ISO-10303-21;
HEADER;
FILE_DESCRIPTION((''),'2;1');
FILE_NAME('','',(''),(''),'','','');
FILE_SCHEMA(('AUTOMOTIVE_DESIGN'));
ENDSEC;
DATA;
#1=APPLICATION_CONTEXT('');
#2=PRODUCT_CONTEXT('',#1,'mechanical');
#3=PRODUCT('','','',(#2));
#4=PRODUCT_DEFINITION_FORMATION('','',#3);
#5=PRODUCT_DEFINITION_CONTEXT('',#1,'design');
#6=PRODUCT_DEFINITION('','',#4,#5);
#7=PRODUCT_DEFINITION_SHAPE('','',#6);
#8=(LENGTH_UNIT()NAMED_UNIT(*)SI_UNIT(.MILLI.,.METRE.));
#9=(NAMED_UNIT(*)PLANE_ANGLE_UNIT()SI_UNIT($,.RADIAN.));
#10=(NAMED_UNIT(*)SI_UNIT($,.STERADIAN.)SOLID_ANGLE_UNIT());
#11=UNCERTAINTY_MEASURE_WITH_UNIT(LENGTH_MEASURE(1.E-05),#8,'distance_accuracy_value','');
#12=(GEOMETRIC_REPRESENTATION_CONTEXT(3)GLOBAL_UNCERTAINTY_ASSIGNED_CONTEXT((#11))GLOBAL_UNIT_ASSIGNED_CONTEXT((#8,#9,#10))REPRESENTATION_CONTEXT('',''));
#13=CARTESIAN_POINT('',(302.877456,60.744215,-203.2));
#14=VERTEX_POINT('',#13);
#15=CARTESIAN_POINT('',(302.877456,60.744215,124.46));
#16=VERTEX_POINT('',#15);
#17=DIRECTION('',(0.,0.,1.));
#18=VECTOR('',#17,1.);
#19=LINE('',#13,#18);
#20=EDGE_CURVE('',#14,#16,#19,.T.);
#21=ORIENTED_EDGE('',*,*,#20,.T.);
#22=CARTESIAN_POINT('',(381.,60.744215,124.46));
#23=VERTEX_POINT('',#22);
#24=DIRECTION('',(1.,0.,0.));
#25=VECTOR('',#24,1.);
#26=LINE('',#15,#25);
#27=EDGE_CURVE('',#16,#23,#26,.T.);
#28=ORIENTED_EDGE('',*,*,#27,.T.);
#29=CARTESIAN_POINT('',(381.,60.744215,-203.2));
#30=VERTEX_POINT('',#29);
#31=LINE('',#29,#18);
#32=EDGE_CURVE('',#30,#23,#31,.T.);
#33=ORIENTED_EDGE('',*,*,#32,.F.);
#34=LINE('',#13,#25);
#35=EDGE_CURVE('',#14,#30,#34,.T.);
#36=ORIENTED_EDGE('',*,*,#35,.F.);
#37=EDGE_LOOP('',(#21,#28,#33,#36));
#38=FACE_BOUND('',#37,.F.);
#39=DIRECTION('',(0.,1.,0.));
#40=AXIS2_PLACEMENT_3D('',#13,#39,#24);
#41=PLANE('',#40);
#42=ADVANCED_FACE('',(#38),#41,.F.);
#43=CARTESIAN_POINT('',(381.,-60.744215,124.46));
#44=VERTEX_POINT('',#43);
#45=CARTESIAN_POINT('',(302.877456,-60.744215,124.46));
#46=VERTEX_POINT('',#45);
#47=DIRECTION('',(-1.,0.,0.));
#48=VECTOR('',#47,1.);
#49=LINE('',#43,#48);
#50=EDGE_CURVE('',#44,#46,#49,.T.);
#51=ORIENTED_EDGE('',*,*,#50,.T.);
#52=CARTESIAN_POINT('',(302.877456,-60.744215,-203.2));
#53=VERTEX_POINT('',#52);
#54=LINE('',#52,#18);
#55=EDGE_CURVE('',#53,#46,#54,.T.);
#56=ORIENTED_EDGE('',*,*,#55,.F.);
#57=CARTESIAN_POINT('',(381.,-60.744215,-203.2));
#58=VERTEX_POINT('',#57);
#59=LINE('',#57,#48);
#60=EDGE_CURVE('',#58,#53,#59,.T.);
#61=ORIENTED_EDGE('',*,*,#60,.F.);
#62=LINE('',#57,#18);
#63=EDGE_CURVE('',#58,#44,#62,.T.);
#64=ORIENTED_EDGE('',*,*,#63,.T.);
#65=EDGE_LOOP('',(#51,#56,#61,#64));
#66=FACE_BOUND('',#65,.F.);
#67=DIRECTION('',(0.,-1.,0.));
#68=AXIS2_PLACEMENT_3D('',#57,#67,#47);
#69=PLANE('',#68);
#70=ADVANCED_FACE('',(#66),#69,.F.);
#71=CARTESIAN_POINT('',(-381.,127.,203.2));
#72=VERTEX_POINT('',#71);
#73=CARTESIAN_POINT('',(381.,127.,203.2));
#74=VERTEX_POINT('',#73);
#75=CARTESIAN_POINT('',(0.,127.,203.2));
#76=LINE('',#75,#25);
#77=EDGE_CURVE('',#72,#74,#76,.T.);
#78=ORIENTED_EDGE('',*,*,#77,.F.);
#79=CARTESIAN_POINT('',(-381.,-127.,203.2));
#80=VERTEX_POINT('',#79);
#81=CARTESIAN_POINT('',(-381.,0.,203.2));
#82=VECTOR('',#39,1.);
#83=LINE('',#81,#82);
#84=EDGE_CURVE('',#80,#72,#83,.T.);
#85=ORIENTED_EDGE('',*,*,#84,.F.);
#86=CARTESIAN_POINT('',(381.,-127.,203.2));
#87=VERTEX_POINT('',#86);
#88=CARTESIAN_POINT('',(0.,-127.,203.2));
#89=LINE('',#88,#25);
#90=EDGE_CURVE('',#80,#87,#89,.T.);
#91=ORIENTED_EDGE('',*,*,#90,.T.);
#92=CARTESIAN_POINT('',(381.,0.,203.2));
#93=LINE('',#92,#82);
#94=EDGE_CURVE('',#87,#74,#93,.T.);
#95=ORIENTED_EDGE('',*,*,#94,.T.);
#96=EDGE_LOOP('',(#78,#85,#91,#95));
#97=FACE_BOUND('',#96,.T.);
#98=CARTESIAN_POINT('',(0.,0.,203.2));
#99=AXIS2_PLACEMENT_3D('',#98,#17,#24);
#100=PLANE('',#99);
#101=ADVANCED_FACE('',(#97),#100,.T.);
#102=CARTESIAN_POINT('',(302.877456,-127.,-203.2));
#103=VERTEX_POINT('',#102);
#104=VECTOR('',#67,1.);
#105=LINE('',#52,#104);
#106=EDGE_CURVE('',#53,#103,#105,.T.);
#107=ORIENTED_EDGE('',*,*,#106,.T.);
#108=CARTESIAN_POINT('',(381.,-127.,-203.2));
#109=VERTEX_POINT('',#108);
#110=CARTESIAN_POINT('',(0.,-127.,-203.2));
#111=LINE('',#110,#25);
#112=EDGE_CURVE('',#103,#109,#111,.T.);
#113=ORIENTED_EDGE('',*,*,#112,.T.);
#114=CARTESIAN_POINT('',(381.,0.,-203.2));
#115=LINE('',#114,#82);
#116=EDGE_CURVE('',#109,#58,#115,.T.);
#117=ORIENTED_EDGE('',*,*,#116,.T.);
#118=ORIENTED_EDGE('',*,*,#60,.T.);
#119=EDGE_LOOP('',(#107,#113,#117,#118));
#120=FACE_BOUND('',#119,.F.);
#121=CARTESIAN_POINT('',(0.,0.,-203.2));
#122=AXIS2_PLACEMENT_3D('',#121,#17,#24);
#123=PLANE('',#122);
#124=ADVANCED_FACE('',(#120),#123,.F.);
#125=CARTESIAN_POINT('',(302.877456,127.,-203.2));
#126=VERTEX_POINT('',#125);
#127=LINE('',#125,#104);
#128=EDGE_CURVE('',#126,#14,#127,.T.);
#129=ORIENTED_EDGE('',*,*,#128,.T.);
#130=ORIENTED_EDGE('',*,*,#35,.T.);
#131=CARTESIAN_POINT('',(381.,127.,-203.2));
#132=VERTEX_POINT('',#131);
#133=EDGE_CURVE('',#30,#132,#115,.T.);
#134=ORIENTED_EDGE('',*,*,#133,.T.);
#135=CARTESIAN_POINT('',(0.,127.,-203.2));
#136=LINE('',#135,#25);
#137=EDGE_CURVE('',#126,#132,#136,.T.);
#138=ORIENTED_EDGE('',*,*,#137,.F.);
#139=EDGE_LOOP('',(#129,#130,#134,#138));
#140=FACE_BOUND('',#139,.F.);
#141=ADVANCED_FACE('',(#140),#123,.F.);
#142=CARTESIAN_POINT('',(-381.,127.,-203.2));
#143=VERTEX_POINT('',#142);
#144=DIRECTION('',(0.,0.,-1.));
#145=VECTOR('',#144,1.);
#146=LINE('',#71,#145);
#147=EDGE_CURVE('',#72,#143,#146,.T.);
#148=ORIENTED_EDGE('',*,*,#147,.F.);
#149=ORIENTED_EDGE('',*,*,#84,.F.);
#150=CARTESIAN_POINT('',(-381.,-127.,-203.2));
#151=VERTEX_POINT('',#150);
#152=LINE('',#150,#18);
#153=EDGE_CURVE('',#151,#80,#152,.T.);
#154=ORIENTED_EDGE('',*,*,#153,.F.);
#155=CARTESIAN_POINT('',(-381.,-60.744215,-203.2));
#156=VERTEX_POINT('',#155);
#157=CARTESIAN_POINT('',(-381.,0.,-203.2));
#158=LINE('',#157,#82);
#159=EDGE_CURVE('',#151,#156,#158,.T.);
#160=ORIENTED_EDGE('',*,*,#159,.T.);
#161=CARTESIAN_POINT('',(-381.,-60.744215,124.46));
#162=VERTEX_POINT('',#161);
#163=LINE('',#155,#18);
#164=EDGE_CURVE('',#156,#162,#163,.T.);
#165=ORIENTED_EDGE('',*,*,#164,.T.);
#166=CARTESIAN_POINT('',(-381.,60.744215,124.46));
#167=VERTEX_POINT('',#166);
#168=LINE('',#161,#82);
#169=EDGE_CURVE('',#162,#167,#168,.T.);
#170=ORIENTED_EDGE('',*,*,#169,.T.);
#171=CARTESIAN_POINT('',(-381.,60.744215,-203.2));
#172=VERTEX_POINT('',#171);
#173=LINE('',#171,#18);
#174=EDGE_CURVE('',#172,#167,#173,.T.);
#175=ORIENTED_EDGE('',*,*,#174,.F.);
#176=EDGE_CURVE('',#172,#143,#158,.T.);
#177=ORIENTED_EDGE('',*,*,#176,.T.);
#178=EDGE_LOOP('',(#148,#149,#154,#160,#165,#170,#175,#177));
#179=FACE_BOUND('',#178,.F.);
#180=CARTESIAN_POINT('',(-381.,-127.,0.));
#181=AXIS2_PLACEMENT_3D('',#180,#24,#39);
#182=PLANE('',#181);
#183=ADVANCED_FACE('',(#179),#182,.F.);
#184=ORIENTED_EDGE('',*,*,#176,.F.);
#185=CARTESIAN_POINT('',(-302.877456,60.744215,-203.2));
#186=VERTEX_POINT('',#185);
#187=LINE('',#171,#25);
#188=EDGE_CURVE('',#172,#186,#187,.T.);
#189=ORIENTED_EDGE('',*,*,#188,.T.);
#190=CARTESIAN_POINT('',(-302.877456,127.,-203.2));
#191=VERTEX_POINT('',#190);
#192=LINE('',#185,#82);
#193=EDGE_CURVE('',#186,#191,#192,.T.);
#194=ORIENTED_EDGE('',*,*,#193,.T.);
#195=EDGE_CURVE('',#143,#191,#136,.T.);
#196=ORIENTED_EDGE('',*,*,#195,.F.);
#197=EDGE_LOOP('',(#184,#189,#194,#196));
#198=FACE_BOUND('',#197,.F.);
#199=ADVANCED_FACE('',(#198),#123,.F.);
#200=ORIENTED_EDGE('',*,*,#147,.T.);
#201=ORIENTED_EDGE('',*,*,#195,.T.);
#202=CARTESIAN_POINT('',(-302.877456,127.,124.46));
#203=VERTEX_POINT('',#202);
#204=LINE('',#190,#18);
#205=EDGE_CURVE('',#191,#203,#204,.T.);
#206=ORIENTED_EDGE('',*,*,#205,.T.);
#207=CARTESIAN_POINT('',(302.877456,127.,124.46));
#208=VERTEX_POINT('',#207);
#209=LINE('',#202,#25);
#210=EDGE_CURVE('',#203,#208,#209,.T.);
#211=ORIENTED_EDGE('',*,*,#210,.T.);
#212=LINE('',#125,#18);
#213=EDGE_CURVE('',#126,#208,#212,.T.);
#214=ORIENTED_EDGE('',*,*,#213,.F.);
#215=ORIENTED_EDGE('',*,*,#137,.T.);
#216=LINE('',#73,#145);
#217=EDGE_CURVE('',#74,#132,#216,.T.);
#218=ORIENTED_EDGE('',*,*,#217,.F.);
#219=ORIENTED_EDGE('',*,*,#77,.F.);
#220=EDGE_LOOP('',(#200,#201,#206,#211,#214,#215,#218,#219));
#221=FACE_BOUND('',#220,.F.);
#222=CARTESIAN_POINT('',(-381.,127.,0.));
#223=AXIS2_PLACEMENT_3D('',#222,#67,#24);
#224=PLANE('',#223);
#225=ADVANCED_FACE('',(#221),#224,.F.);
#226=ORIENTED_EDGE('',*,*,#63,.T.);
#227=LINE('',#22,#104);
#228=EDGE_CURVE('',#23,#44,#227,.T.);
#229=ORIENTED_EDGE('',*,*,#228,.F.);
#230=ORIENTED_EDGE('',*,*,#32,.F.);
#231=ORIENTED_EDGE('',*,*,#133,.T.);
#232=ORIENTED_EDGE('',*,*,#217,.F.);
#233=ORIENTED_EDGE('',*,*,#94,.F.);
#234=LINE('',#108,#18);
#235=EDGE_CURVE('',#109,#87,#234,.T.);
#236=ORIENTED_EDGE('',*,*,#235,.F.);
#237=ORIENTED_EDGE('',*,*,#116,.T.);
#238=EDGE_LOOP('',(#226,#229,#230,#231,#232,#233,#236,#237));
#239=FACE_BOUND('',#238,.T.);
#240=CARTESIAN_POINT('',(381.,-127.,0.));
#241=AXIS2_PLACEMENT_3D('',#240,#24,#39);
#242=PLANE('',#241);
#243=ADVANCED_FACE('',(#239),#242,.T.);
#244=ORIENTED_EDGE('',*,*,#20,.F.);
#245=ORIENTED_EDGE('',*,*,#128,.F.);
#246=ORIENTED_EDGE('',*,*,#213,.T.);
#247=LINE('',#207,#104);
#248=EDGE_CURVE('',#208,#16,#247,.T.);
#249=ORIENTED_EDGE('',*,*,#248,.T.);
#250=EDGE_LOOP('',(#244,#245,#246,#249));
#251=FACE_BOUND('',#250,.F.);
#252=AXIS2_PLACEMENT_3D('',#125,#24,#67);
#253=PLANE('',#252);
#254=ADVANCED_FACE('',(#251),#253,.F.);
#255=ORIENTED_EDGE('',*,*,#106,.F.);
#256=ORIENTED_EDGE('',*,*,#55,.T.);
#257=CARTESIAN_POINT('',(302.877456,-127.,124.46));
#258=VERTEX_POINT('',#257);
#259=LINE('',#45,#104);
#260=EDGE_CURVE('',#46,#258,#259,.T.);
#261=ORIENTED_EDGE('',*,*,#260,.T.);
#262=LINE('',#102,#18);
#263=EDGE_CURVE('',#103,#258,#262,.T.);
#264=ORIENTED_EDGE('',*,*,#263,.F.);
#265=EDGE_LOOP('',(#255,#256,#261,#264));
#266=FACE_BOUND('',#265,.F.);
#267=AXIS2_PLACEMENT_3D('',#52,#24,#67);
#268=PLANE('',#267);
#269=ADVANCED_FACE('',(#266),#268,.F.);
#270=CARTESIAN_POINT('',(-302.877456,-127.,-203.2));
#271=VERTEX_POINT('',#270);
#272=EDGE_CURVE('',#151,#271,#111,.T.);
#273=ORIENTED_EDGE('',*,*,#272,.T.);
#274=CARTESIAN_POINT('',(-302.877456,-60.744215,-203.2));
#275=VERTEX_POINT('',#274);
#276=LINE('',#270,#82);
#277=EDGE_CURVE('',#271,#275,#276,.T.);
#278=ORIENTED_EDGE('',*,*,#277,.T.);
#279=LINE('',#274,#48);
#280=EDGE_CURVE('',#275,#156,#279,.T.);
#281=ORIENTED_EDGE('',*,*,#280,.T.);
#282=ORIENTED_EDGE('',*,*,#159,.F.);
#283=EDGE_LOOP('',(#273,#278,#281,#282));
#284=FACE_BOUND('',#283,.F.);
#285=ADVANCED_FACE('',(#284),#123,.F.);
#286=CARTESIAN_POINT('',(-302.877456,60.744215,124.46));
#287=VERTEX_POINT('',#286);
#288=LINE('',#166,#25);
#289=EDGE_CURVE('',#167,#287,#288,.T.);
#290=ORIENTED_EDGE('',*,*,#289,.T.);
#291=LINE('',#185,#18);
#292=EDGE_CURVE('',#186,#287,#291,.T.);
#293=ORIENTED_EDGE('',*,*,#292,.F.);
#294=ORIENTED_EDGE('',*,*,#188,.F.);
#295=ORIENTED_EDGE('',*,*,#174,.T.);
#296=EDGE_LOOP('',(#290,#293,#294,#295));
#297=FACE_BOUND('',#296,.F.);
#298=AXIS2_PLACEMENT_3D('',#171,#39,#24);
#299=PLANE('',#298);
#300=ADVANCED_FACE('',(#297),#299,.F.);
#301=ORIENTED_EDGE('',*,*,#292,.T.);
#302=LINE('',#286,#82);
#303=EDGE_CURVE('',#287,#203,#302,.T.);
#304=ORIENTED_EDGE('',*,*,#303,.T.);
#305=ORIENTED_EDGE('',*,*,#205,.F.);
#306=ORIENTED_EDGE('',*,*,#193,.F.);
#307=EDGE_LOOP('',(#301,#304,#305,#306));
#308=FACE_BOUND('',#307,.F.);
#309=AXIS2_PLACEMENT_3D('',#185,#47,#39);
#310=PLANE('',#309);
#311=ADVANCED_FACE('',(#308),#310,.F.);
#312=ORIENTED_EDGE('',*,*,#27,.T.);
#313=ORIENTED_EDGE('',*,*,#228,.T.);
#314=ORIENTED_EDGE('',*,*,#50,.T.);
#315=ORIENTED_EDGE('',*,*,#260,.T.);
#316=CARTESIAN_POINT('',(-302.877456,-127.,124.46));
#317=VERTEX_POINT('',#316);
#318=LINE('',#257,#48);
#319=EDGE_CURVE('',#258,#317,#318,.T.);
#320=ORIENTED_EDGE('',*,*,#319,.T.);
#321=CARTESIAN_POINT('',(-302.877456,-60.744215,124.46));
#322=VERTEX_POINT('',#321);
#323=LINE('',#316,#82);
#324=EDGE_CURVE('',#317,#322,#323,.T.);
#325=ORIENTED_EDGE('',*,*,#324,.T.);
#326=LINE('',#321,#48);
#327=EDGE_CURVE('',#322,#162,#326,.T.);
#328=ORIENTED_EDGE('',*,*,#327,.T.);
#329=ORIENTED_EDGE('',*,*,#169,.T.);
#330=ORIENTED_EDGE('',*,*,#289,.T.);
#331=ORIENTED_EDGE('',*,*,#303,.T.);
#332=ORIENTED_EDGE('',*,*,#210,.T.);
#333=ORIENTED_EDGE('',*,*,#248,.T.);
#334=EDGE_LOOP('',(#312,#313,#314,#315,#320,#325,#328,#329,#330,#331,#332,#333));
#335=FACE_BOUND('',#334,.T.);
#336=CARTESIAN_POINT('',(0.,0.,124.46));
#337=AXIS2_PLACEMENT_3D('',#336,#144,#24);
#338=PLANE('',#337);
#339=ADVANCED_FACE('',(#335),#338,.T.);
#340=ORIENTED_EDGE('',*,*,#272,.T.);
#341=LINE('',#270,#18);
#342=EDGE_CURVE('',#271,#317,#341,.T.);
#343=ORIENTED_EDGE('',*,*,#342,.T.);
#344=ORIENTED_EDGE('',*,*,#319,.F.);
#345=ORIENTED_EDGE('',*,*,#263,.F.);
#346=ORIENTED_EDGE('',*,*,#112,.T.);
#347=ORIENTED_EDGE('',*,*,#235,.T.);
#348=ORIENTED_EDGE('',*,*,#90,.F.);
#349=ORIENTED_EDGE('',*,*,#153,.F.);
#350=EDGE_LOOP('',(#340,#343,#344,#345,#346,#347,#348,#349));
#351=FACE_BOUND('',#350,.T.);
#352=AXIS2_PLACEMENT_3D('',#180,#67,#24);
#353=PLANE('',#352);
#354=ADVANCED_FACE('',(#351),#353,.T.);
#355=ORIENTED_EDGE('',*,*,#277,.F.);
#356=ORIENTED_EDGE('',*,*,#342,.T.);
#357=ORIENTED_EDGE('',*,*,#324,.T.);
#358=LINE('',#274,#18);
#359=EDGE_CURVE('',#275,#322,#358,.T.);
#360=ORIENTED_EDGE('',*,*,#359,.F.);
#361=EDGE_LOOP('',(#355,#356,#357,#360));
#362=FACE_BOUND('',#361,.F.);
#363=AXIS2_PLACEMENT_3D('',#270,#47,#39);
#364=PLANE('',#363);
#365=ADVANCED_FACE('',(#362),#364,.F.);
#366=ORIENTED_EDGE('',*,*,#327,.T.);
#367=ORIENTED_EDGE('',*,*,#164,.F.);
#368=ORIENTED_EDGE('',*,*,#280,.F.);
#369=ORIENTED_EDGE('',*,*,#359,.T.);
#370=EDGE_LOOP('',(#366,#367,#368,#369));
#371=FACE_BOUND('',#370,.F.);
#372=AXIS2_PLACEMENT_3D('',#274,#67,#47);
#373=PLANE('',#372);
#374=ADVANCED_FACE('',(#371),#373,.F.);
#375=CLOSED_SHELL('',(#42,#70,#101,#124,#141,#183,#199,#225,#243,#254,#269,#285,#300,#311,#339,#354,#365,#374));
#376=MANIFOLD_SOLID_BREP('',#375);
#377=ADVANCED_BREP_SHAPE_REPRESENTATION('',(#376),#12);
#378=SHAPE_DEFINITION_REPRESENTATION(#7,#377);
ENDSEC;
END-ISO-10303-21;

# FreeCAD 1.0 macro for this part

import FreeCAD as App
import Part
import Sketcher

V = App.Vector
Q = App.Units.Quantity

doc = App.newDocument("Part")
body = doc.addObject("PartDesign::Body", "Body")

sketch1 = body.newObject("Sketcher::SketchObject", "Sketch")
sketch1.AttachmentSupport = (doc.getObject("XY_Plane"), [""])
sketch1.MapMode = "FlatFace"
sketch1.addGeometry([
    Part.LineSegment(V(-381, 127, 0), V(-381, -127, 0)),
    Part.LineSegment(V(-381, -127, 0), V(381, -127, 0)),
    Part.LineSegment(V(381, -127, 0), V(381, 127, 0)),
    Part.LineSegment(V(381, 127, 0), V(-381, 127, 0)),
], False)
sketch1.addConstraint([
    Sketcher.Constraint("Coincident", 0, 2, 1, 1),
    Sketcher.Constraint("Coincident", 1, 2, 2, 1),
    Sketcher.Constraint("Coincident", 2, 2, 3, 1),
    Sketcher.Constraint("Coincident", 3, 2, 0, 1),
    Sketcher.Constraint("Vertical", 0),
    Sketcher.Constraint("Horizontal", 1),
    Sketcher.Constraint("Vertical", 2),
    Sketcher.Constraint("Horizontal", 3),
    Sketcher.Constraint("Symmetric", 0, 2, 2, 2, -1, 1),
    Sketcher.Constraint("DistanceX", 1, 1, 1, 2, Q("30 in")),
    Sketcher.Constraint("DistanceY", 0, 2, 0, 1, Q("10 in")),
])
pad1 = body.newObject("PartDesign::Pad", "Pad")
pad1.Profile = sketch1
pad1.Length = Q("16 in")
pad1.Midplane = True

sketch2 = body.newObject("Sketcher::SketchObject", "Sketch001")
sketch2.AttachmentSupport = (doc.getObject("XY_Plane"), [""])
sketch2.MapMode = "FlatFace"
sketch2.AttachmentOffset = App.Placement(V(0, 0, -8 * 25.4), App.Rotation())
sketch2.addGeometry([
    Part.LineSegment(V(303, -127, 0), V(-303, -127, 0)),
    Part.LineSegment(V(-303, -127, 0), V(-303, -61, 0)),
    Part.LineSegment(V(-303, -61, 0), V(-381, -61, 0)),
    Part.LineSegment(V(-381, -61, 0), V(-381, 61, 0)),
    Part.LineSegment(V(-381, 61, 0), V(-303, 61, 0)),
    Part.LineSegment(V(-303, 61, 0), V(-303, 127, 0)),
    Part.LineSegment(V(-303, 127, 0), V(303, 127, 0)),
    Part.LineSegment(V(303, 127, 0), V(303, 61, 0)),
    Part.LineSegment(V(303, 61, 0), V(381, 61, 0)),
    Part.LineSegment(V(381, 61, 0), V(381, -61, 0)),
    Part.LineSegment(V(381, -61, 0), V(303, -61, 0)),
    Part.LineSegment(V(303, -61, 0), V(303, -127, 0)),
], False)
sketch2.addConstraint([
    Sketcher.Constraint("Coincident", 0, 2, 1, 1),
    Sketcher.Constraint("Coincident", 1, 2, 2, 1),
    Sketcher.Constraint("Coincident", 2, 2, 3, 1),
    Sketcher.Constraint("Coincident", 3, 2, 4, 1),
    Sketcher.Constraint("Coincident", 4, 2, 5, 1),
    Sketcher.Constraint("Coincident", 5, 2, 6, 1),
    Sketcher.Constraint("Coincident", 6, 2, 7, 1),
    Sketcher.Constraint("Coincident", 7, 2, 8, 1),
    Sketcher.Constraint("Coincident", 8, 2, 9, 1),
    Sketcher.Constraint("Coincident", 9, 2, 10, 1),
    Sketcher.Constraint("Coincident", 10, 2, 11, 1),
    Sketcher.Constraint("Coincident", 11, 2, 0, 1),
    Sketcher.Constraint("Horizontal", 0),
    Sketcher.Constraint("Vertical", 1),
    Sketcher.Constraint("Horizontal", 2),
    Sketcher.Constraint("Vertical", 3),
    Sketcher.Constraint("Horizontal", 4),
    Sketcher.Constraint("Vertical", 5),
    Sketcher.Constraint("Horizontal", 6),
    Sketcher.Constraint("Vertical", 7),
    Sketcher.Constraint("Horizontal", 8),
    Sketcher.Constraint("Vertical", 9),
    Sketcher.Constraint("Horizontal", 10),
    Sketcher.Constraint("Vertical", 11),
    Sketcher.Constraint("Symmetric", 0, 2, 6, 2, -1, 1),
    Sketcher.Constraint("Symmetric", 2, 2, 8, 2, -1, 1),
    Sketcher.Constraint("Symmetric", 4, 2, 10, 2, -1, 1),
    Sketcher.Constraint("Symmetric", 4, 2, 7, 2, -2),
    Sketcher.Constraint("DistanceY", 0, 2, -1, 1, Q("5 in")),
    Sketcher.Constraint("DistanceX", 2, 2, -1, 1, Q("15 in")),
    Sketcher.Constraint("DistanceX", 0, 2, 0, 1, 605.754912),
    Sketcher.Constraint("DistanceY", 3, 1, 3, 2, 121.48843),
])
pocket1 = body.newObject("PartDesign::Pocket", "Pocket")
pocket1.Profile = sketch2
pocket1.Length = Q("12.9 in")
pocket1.Reversed = True

doc.recompute()
